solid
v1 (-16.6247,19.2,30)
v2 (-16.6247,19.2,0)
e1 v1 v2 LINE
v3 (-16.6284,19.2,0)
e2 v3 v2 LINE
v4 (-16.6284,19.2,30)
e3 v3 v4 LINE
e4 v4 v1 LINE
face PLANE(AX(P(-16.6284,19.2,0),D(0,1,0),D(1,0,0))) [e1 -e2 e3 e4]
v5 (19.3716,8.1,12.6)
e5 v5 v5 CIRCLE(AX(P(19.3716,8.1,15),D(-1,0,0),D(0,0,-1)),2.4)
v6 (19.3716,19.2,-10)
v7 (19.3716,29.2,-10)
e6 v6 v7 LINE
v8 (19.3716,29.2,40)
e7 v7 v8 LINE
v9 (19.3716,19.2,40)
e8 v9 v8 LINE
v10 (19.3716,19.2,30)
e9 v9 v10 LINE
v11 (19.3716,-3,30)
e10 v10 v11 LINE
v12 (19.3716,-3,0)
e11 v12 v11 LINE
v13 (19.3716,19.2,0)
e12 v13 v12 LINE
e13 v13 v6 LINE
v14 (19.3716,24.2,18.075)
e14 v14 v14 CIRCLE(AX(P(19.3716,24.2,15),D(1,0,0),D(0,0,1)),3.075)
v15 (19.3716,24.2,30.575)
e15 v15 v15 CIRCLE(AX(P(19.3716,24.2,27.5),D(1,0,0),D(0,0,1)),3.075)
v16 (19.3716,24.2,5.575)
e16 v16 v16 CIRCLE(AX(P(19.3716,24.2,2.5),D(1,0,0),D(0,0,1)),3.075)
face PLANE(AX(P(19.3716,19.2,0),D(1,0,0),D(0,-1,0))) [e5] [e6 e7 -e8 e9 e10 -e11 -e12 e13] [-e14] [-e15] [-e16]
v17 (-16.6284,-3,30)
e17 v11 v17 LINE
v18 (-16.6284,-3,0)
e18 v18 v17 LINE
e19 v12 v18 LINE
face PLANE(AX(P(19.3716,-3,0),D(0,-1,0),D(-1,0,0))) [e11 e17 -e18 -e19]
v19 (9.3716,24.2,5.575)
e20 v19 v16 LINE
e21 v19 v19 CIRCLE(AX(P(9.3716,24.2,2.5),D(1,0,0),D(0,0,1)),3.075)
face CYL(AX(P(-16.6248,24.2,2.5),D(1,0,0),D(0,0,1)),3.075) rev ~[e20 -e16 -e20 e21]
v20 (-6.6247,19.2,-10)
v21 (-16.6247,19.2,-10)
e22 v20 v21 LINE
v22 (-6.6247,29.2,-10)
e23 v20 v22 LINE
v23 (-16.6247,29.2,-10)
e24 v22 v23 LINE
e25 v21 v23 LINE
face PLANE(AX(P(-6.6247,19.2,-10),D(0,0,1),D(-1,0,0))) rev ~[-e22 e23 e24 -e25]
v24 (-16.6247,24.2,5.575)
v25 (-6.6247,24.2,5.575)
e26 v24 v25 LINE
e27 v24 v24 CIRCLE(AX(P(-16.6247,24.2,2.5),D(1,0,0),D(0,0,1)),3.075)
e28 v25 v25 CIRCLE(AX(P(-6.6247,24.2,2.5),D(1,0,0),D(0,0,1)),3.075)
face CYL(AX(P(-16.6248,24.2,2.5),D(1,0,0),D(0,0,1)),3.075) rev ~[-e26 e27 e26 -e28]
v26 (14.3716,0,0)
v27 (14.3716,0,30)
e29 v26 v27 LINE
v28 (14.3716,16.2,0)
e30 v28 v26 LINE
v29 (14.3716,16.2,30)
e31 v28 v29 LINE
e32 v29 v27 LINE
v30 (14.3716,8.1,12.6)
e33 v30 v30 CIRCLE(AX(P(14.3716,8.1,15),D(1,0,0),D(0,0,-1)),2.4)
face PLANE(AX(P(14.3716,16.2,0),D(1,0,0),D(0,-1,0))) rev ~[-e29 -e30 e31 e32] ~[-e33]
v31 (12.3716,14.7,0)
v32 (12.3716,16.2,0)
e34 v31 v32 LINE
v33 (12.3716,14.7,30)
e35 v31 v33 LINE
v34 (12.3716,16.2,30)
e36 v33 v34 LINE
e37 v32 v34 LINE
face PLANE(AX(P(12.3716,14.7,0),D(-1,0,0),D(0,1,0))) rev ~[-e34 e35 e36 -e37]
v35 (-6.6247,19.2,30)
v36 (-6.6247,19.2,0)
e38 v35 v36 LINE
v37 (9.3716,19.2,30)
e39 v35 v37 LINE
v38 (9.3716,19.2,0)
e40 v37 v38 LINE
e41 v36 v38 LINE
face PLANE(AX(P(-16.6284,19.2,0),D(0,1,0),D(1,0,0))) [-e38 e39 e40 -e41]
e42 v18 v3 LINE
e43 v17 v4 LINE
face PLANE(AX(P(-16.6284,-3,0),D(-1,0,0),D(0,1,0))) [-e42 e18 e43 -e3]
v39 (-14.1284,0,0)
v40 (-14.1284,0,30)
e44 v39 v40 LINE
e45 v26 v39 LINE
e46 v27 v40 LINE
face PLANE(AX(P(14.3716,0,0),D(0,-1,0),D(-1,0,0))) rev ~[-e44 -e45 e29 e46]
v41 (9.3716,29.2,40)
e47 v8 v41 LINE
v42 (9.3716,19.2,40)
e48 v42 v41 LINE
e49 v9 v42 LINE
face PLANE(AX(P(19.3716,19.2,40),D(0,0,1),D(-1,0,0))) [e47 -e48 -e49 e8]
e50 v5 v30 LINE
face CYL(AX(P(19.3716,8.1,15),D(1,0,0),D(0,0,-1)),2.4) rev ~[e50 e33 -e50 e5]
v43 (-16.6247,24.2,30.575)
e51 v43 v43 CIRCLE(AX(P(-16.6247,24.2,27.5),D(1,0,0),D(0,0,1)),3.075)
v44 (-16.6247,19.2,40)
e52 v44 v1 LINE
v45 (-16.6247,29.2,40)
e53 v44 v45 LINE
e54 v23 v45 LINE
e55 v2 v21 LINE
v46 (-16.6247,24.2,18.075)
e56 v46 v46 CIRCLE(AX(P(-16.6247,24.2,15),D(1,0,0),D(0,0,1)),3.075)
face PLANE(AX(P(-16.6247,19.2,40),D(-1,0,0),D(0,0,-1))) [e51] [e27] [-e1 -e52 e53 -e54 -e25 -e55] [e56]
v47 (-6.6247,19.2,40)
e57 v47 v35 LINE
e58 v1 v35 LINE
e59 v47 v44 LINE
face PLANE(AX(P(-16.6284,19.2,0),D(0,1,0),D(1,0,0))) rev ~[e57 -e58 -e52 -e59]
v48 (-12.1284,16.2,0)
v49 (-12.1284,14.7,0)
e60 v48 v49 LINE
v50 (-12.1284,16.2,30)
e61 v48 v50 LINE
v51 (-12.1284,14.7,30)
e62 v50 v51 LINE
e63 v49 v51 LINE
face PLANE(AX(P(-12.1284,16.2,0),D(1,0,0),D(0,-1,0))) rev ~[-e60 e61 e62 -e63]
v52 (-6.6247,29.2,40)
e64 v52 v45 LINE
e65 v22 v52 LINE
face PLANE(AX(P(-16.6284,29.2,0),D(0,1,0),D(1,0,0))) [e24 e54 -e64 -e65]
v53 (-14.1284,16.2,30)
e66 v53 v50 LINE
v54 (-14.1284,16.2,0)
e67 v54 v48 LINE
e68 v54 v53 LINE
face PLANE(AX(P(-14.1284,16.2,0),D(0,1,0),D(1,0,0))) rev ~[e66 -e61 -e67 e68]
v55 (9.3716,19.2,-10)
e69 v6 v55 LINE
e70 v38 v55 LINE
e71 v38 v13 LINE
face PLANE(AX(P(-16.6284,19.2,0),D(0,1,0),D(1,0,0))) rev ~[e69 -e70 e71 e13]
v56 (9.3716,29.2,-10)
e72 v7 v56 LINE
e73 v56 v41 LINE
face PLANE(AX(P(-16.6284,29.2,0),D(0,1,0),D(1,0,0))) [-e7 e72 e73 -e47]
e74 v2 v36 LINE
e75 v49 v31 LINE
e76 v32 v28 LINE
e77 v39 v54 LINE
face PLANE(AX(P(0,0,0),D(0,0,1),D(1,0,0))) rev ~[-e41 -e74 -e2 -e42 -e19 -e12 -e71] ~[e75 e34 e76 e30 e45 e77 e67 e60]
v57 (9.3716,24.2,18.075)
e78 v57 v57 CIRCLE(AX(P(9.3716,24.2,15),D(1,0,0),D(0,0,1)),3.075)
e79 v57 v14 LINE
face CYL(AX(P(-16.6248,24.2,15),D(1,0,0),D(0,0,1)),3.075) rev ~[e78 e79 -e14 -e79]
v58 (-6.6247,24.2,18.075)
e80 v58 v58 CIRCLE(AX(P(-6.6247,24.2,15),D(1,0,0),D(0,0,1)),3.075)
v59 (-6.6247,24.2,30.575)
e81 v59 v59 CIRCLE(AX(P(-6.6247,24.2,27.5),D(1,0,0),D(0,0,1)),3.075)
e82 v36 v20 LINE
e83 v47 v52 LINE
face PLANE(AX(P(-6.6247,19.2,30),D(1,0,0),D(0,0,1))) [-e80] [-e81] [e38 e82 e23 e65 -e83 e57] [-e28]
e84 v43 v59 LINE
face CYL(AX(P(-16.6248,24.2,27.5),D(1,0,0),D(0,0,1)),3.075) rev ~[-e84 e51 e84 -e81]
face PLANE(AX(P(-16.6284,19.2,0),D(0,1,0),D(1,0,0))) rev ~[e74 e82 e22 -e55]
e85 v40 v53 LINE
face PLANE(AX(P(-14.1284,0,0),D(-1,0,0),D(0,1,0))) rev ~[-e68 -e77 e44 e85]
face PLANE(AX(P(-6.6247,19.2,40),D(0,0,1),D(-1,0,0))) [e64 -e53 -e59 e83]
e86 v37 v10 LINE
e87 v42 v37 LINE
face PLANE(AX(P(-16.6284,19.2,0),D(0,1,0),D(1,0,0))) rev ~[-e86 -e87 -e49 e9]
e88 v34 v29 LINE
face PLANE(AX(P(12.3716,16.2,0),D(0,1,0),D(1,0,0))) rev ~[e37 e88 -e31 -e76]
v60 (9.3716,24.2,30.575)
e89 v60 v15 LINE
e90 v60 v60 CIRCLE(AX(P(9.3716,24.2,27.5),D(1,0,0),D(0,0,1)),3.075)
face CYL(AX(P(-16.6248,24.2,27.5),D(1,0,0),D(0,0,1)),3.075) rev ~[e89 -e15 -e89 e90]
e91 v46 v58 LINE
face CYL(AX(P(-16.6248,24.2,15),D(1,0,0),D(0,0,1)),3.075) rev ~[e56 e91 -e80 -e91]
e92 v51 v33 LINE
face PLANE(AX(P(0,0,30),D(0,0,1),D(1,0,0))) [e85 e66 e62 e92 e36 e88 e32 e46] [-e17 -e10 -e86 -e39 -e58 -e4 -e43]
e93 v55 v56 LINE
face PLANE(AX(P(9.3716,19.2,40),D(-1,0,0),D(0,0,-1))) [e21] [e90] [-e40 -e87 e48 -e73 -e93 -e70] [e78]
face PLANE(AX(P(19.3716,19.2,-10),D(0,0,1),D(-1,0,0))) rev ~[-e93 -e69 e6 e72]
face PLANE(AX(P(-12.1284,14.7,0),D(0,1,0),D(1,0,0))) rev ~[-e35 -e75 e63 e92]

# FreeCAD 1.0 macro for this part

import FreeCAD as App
import Part
import Sketcher
Q = App.Units.Quantity

doc = App.newDocument("Part")
params = doc.addObject("Spreadsheet::Sheet", "Params")
for row, (alias, value) in enumerate([
    ("sketch1_width", "2 mm"),
    ("sketch1_width2", "28.5 mm"),
    ("sketch1_height", "16.2 mm"),
    ("sketch1_height2", "1.5 mm"),
    ("pad1_length", "30 mm"),
    ("sketch2_diameter", "4.8 mm"),
    ("pocket1_length", "10 mm"),
    ("sketch3_width", "10 mm"),
    ("sketch3_height", "50 mm"),
    ("pad2_length", "10 mm"),
    ("sketch4_diameter", "6.15 mm"),
    ("hole_diameter", "6.15 mm"),
], start=1):
    params.set(f"A{row}", alias)
    params.set(f"B{row}", "=" + value)
    params.setAlias(f"B{row}", alias)

body = doc.addObject("PartDesign::Body", "Body")

# Sketch on XY plane
sketch1 = body.newObject("Sketcher::SketchObject", "Sketch")
sketch1.AttachmentSupport = (doc.getObject("XY_Plane"), [""])
sketch1.MapMode = "FlatFace"
sketch1.addGeometry(Part.LineSegment(App.Vector(19.4, 19.2, 0), App.Vector(-16.6, 19.2, 0)), False)
sketch1.addGeometry(Part.LineSegment(App.Vector(-16.6, 19.2, 0), App.Vector(-16.6, -3, 0)), False)
sketch1.addGeometry(Part.LineSegment(App.Vector(-16.6, -3, 0), App.Vector(19.4, -3, 0)), False)
sketch1.addGeometry(Part.LineSegment(App.Vector(19.4, -3, 0), App.Vector(19.4, 19.2, 0)), False)
sketch1.addGeometry(Part.LineSegment(App.Vector(14.4, 0, 0), App.Vector(-14.1, 0, 0)), False)
sketch1.addGeometry(Part.LineSegment(App.Vector(-14.1, 0, 0), App.Vector(-14.1, 16.2, 0)), False)
sketch1.addGeometry(Part.LineSegment(App.Vector(-14.1, 16.2, 0), App.Vector(-12.1, 16.2, 0)), False)
sketch1.addGeometry(Part.LineSegment(App.Vector(-12.1, 16.2, 0), App.Vector(-12.1, 14.7, 0)), False)
sketch1.addGeometry(Part.LineSegment(App.Vector(-12.1, 14.7, 0), App.Vector(12.4, 14.7, 0)), False)
sketch1.addGeometry(Part.LineSegment(App.Vector(12.4, 14.7, 0), App.Vector(12.4, 16.2, 0)), False)
sketch1.addGeometry(Part.LineSegment(App.Vector(12.4, 16.2, 0), App.Vector(14.4, 16.2, 0)), False)
sketch1.addGeometry(Part.LineSegment(App.Vector(14.4, 16.2, 0), App.Vector(14.4, 0, 0)), False)
sketch1.addConstraint(Sketcher.Constraint("Coincident", 0, 2, 1, 1))
sketch1.addConstraint(Sketcher.Constraint("Coincident", 1, 2, 2, 1))
sketch1.addConstraint(Sketcher.Constraint("Coincident", 2, 2, 3, 1))
sketch1.addConstraint(Sketcher.Constraint("Coincident", 3, 2, 0, 1))
sketch1.addConstraint(Sketcher.Constraint("Coincident", 4, 2, 5, 1))
sketch1.addConstraint(Sketcher.Constraint("Coincident", 5, 2, 6, 1))
sketch1.addConstraint(Sketcher.Constraint("Coincident", 6, 2, 7, 1))
sketch1.addConstraint(Sketcher.Constraint("Coincident", 7, 2, 8, 1))
sketch1.addConstraint(Sketcher.Constraint("Coincident", 8, 2, 9, 1))
sketch1.addConstraint(Sketcher.Constraint("Coincident", 9, 2, 10, 1))
sketch1.addConstraint(Sketcher.Constraint("Coincident", 10, 2, 11, 1))
sketch1.addConstraint(Sketcher.Constraint("Coincident", 11, 2, 4, 1))
sketch1.addConstraint(Sketcher.Constraint("Horizontal", 0))
sketch1.addConstraint(Sketcher.Constraint("Vertical", 1))
sketch1.addConstraint(Sketcher.Constraint("Horizontal", 2))
sketch1.addConstraint(Sketcher.Constraint("Vertical", 3))
sketch1.addConstraint(Sketcher.Constraint("Horizontal", 4))
sketch1.addConstraint(Sketcher.Constraint("Vertical", 5))
sketch1.addConstraint(Sketcher.Constraint("Horizontal", 6))
sketch1.addConstraint(Sketcher.Constraint("Vertical", 7))
sketch1.addConstraint(Sketcher.Constraint("Horizontal", 8))
sketch1.addConstraint(Sketcher.Constraint("Vertical", 9))
sketch1.addConstraint(Sketcher.Constraint("Horizontal", 10))
sketch1.addConstraint(Sketcher.Constraint("Vertical", 11))
sketch1.addConstraint(Sketcher.Constraint("PointOnObject", 4, 2, -1))
sketch1.addConstraint(Sketcher.Constraint("Horizontal", 6, 2, 9, 2))
sketch1.addConstraint(Sketcher.Constraint("Equal", 6, 10))
sketch1.addConstraint(Sketcher.Constraint("DistanceX", 6, 1, 6, 2, Q("2 mm")))
sketch1.addConstraint(Sketcher.Constraint("DistanceX", 4, 2, 4, 1, Q("28.5 mm")))
sketch1.addConstraint(Sketcher.Constraint("DistanceY", 5, 1, 5, 2, Q("16.2 mm")))
sketch1.addConstraint(Sketcher.Constraint("DistanceY", 7, 2, 7, 1, Q("1.5 mm")))
sketch1.addConstraint(Sketcher.Constraint("DistanceY", 1, 2, -1, 1, Q("3 mm")))
sketch1.addConstraint(Sketcher.Constraint("DistanceY", 5, 2, 0, 2, Q("3 mm")))
sketch1.addConstraint(Sketcher.Constraint("DistanceX", 10, 2, 3, 2, Q("5 mm")))
sketch1.addConstraint(Sketcher.Constraint("DistanceX", 1, 2, 4, 2, Q("2.5 mm")))
sketch1.addConstraint(Sketcher.Constraint("DistanceX", 0, 2, -1, 1, Q("16.6284 mm")))
sketch1.setExpression("Constraints[27]", "Params.sketch1_width")
sketch1.setExpression("Constraints[28]", "Params.sketch1_width2")
sketch1.setExpression("Constraints[29]", "Params.sketch1_height")
sketch1.setExpression("Constraints[30]", "Params.sketch1_height2")
pad1 = body.newObject("PartDesign::Pad", "Pad")
pad1.Profile = sketch1
pad1.setExpression("Length", "Params.pad1_length")

# Sketch on YZ plane
sketch2 = body.newObject("Sketcher::SketchObject", "Sketch001")
sketch2.AttachmentSupport = (doc.getObject("YZ_Plane"), [""])
sketch2.MapMode = "FlatFace"
sketch2.AttachmentOffset = App.Placement(App.Vector(0, 0, 19.3716), App.Rotation())
sketch2.addGeometry(Part.Circle(App.Vector(8.1, 15, 0), App.Vector(0, 0, 1), 2.4), False)
sketch2.addConstraint(Sketcher.Constraint("Diameter", 0, Q("4.8 mm")))
sketch2.addConstraint(Sketcher.Constraint("DistanceY", -1, 1, 0, 3, Q("15 mm")))
sketch2.addConstraint(Sketcher.Constraint("DistanceX", -1, 1, 0, 3, Q("8.1 mm")))
sketch2.setExpression("Constraints[0]", "Params.sketch2_diameter")
pocket1 = body.newObject("PartDesign::Pocket", "Pocket")
pocket1.Profile = sketch2
pocket1.setExpression("Length", "Params.pocket1_length")

# Sketch on XZ plane
sketch3 = body.newObject("Sketcher::SketchObject", "Sketch002")
sketch3.AttachmentSupport = (doc.getObject("XZ_Plane"), [""])
sketch3.MapMode = "FlatFace"
sketch3.AttachmentOffset = App.Placement(App.Vector(0, 0, -19.2), App.Rotation())
sketch3.addGeometry(Part.LineSegment(App.Vector(19, 40, 0), App.Vector(19, -10, 0)), False)
sketch3.addGeometry(Part.LineSegment(App.Vector(19, -10, 0), App.Vector(9, -10, 0)), False)
sketch3.addGeometry(Part.LineSegment(App.Vector(9, -10, 0), App.Vector(9, 40, 0)), False)
sketch3.addGeometry(Part.LineSegment(App.Vector(9, 40, 0), App.Vector(19, 40, 0)), False)
sketch3.addGeometry(Part.LineSegment(App.Vector(-7, 40, 0), App.Vector(-7, -10, 0)), False)
sketch3.addGeometry(Part.LineSegment(App.Vector(-7, -10, 0), App.Vector(-17, -10, 0)), False)
sketch3.addGeometry(Part.LineSegment(App.Vector(-17, -10, 0), App.Vector(-17, 40, 0)), False)
sketch3.addGeometry(Part.LineSegment(App.Vector(-17, 40, 0), App.Vector(-7, 40, 0)), False)
sketch3.addConstraint(Sketcher.Constraint("Coincident", 0, 2, 1, 1))
sketch3.addConstraint(Sketcher.Constraint("Coincident", 1, 2, 2, 1))
sketch3.addConstraint(Sketcher.Constraint("Coincident", 2, 2, 3, 1))
sketch3.addConstraint(Sketcher.Constraint("Coincident", 3, 2, 0, 1))
sketch3.addConstraint(Sketcher.Constraint("Coincident", 4, 2, 5, 1))
sketch3.addConstraint(Sketcher.Constraint("Coincident", 5, 2, 6, 1))
sketch3.addConstraint(Sketcher.Constraint("Coincident", 6, 2, 7, 1))
sketch3.addConstraint(Sketcher.Constraint("Coincident", 7, 2, 4, 1))
sketch3.addConstraint(Sketcher.Constraint("Vertical", 0))
sketch3.addConstraint(Sketcher.Constraint("Horizontal", 1))
sketch3.addConstraint(Sketcher.Constraint("Vertical", 2))
sketch3.addConstraint(Sketcher.Constraint("Horizontal", 3))
sketch3.addConstraint(Sketcher.Constraint("Vertical", 4))
sketch3.addConstraint(Sketcher.Constraint("Horizontal", 5))
sketch3.addConstraint(Sketcher.Constraint("Vertical", 6))
sketch3.addConstraint(Sketcher.Constraint("Horizontal", 7))
sketch3.addConstraint(Sketcher.Constraint("Horizontal", 1, 2, 4, 2))
sketch3.addConstraint(Sketcher.Constraint("Horizontal", 3, 2, 6, 2))
sketch3.addConstraint(Sketcher.Constraint("Equal", 3, 5))
sketch3.addConstraint(Sketcher.Constraint("DistanceX", 1, 2, 1, 1, Q("10 mm")))
sketch3.addConstraint(Sketcher.Constraint("DistanceY", 0, 2, -1, 1, Q("10 mm")))
sketch3.addConstraint(Sketcher.Constraint("DistanceY", 0, 2, 0, 1, Q("50 mm")))
sketch3.addConstraint(Sketcher.Constraint("DistanceX", -1, 1, 0, 2, Q("19.3716 mm")))
sketch3.addConstraint(Sketcher.Constraint("DistanceX", 4, 2, -1, 1, Q("6.6247 mm")))
sketch3.setExpression("Constraints[19]", "Params.sketch3_width")
sketch3.setExpression("Constraints[21]", "Params.sketch3_height")
pad2 = body.newObject("PartDesign::Pad", "Pad001")
pad2.Profile = sketch3
pad2.setExpression("Length", "Params.pad2_length")
pad2.Reversed = True

# Sketch on YZ plane
sketch4 = body.newObject("Sketcher::SketchObject", "Sketch003")
sketch4.AttachmentSupport = (doc.getObject("YZ_Plane"), [""])
sketch4.MapMode = "FlatFace"
sketch4.AttachmentOffset = App.Placement(App.Vector(0, 0, -16.6248), App.Rotation())
sketch4.addGeometry(Part.Circle(App.Vector(24.2, 2.5, 0), App.Vector(0, 0, 1), 3.1), False)
sketch4.addGeometry(Part.Circle(App.Vector(24.2, 15, 0), App.Vector(0, 0, 1), 3.1), False)
sketch4.addGeometry(Part.Circle(App.Vector(24.2, 27.5, 0), App.Vector(0, 0, 1), 3.1), False)
sketch4.addConstraint(Sketcher.Constraint("Equal", 0, 1))
sketch4.addConstraint(Sketcher.Constraint("Equal", 1, 2))
sketch4.addConstraint(Sketcher.Constraint("Vertical", 0, 3, 1, 3))
sketch4.addConstraint(Sketcher.Constraint("Vertical", 1, 3, 2, 3))
sketch4.addConstraint(Sketcher.Constraint("Diameter", 0, Q("6.15 mm")))
sketch4.addConstraint(Sketcher.Constraint("DistanceY", -1, 1, 1, 3, Q("15 mm")))
sketch4.addConstraint(Sketcher.Constraint("DistanceY", 0, 3, 2, 3, Q("25 mm")))
sketch4.addConstraint(Sketcher.Constraint("DistanceX", -1, 1, 0, 3, Q("24.2 mm")))
sketch4.addConstraint(Sketcher.Constraint("DistanceY", -1, 1, 0, 3, Q("2.5 mm")))
sketch4.setExpression("Constraints[4]", "Params.sketch4_diameter")
doc.recompute()
hole = body.newObject("PartDesign::Hole", "Hole")
hole.Profile = sketch4
hole.ThreadType = "None"
hole.setExpression("Diameter", "Params.hole_diameter")
hole.DepthType = "ThroughAll"
hole.Reversed = True

doc.recompute()
